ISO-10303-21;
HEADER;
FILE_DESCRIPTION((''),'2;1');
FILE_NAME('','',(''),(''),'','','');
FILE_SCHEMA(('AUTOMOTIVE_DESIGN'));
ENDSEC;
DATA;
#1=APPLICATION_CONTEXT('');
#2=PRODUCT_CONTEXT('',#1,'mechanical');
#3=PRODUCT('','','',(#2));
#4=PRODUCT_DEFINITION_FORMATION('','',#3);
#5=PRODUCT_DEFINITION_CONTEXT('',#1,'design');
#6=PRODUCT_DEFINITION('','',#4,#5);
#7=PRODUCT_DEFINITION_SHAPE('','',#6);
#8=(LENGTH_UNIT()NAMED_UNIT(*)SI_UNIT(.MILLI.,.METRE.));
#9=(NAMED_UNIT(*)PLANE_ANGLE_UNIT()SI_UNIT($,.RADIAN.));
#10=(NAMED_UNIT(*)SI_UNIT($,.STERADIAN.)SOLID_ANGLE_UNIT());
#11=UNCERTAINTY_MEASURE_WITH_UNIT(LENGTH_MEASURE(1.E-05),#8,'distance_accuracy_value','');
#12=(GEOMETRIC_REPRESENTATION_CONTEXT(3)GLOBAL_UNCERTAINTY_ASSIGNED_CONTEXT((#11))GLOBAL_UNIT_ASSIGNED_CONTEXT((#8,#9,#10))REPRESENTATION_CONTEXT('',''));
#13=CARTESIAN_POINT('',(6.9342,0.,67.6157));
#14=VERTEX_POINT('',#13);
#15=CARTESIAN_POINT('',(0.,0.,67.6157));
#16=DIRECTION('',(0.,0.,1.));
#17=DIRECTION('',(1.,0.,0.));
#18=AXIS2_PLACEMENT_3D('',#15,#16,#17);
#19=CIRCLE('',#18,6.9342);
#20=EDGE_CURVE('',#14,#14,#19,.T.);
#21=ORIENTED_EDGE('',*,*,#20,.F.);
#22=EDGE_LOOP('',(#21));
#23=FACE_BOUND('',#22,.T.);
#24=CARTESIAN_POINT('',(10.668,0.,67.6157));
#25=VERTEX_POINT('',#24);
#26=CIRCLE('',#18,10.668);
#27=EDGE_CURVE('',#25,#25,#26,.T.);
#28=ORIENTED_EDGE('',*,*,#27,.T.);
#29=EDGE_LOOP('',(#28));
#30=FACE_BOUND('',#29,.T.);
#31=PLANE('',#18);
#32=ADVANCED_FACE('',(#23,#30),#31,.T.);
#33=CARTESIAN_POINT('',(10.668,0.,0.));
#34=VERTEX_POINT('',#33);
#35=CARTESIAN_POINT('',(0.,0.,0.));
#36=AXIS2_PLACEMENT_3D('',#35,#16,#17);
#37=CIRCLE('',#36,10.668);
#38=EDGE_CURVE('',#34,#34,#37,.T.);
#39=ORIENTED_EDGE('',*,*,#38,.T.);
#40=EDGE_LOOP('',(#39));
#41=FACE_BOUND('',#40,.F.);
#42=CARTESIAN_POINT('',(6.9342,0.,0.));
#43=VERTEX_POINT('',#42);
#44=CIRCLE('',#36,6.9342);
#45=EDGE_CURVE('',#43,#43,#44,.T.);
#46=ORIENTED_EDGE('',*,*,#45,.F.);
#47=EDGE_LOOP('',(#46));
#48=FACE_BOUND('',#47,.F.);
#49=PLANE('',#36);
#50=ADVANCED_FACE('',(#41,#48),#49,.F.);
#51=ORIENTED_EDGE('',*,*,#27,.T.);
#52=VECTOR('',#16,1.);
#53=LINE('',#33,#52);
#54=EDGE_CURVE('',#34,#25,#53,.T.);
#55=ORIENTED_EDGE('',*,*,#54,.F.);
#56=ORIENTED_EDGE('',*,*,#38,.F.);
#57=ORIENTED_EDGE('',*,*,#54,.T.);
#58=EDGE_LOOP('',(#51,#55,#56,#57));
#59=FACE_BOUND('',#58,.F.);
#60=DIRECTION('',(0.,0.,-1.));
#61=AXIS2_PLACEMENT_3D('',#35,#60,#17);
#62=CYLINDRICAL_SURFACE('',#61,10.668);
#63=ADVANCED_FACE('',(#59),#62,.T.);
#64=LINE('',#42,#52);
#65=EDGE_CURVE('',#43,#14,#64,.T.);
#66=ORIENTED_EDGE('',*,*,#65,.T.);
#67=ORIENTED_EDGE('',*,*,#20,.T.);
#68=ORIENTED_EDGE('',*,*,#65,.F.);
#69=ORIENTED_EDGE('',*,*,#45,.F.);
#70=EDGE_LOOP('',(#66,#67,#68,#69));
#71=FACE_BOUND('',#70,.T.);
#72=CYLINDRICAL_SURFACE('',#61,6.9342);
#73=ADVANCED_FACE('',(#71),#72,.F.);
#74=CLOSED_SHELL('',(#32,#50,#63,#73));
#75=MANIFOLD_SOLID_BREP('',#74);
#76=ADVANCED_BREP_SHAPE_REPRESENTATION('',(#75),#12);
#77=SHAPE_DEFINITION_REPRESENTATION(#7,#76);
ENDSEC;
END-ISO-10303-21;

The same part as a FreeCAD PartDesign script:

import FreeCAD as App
import Part
import Sketcher

V = App.Vector
Q = App.Units.Quantity

doc = App.newDocument("Part")
body = doc.addObject("PartDesign::Body", "Body")

sketch1 = body.newObject("Sketcher::SketchObject", "Sketch")
sketch1.AttachmentSupport = (doc.getObject("XY_Plane"), [""])
sketch1.MapMode = "FlatFace"
sketch1.addGeometry(Part.Circle(V(0, 0, 0), V(0, 0, 1), 11), False)
sketch1.addGeometry(Part.Circle(V(0, 0, 0), V(0, 0, 1), 7), False)
sketch1.addConstraint(Sketcher.Constraint("Coincident", 0, 3, -1, 1))
sketch1.addConstraint(Sketcher.Constraint("Coincident", 1, 3, -1, 1))
sketch1.addConstraint(Sketcher.Constraint("Diameter", 0, Q("0.84 in")))
sketch1.addConstraint(Sketcher.Constraint("Diameter", 1, Q("0.546 in")))
pad1 = body.newObject("PartDesign::Pad", "Pad")
pad1.Profile = sketch1
pad1.Length = 67.6157

doc.recompute()
